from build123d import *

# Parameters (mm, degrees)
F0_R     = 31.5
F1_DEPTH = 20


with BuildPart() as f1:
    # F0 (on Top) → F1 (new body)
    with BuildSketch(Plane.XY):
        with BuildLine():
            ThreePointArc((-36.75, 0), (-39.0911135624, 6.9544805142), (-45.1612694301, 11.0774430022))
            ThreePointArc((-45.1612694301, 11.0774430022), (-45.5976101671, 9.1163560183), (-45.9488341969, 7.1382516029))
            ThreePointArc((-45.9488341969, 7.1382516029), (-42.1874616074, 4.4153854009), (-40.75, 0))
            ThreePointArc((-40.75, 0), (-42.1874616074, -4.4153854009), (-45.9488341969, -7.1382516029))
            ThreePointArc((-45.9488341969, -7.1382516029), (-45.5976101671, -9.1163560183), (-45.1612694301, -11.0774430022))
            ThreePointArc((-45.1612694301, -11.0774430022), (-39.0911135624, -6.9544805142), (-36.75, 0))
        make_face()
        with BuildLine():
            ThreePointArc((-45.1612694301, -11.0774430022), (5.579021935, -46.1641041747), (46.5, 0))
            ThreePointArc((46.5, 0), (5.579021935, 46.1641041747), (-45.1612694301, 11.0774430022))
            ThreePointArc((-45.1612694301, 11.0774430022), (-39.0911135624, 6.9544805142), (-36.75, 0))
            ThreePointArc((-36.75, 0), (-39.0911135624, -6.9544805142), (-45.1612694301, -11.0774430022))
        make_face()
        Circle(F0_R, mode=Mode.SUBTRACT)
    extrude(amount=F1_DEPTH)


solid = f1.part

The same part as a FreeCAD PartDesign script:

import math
import FreeCAD as App
import Part
import Sketcher

doc = App.newDocument("Part")
body = doc.addObject("PartDesign::Body", "Body")

sketch1 = body.newObject("Sketcher::SketchObject", "Sketch")
sketch1.AttachmentSupport = (doc.getObject("XY_Plane"), [""])
sketch1.MapMode = "FlatFace"
sketch1.addGeometry([
    Part.ArcOfCircle(Part.Circle(App.Vector(0, 0, 0), App.Vector(0, 0, 1), 46.5), math.radians(166.22), math.radians(171.17)),
    Part.ArcOfCircle(Part.Circle(App.Vector(-48.2, 0, 0), App.Vector(0, 0, 1), 7.5), math.radians(0), math.radians(72)),
    Part.ArcOfCircle(Part.Circle(App.Vector(-48.2, 0, 0), App.Vector(0, 0, 1), 7.5), math.radians(-72), math.radians(0)),
    Part.ArcOfCircle(Part.Circle(App.Vector(0, 0, 0), App.Vector(0, 0, 1), 46.5), math.radians(-171.17), math.radians(-166.22)),
    Part.ArcOfCircle(Part.Circle(App.Vector(0, 0, 0), App.Vector(0, 0, 1), 46.5), math.radians(-166), math.radians(166)),
    Part.Circle(App.Vector(0, 0, 0), App.Vector(0, 0, 1), 31.5),
], False)
sketch1.addConstraint([
    Sketcher.Constraint("Coincident", 0, 2, 1, 2),
    Sketcher.Constraint("Tangent", 1, 1, 2, 2),
    Sketcher.Constraint("Coincident", 2, 1, 3, 1),
    Sketcher.Constraint("Tangent", 3, 2, 4, 1),
    Sketcher.Constraint("Tangent", 4, 2, 0, 1),
    Sketcher.Constraint("Coincident", 0, 3, -1, 1),
    Sketcher.Constraint("Coincident", 3, 3, -1, 1),
    Sketcher.Constraint("Coincident", 5, 3, -1, 1),
    Sketcher.Constraint("Equal", 1, 2),
    Sketcher.Constraint("PointOnObject", 1, 3, -1),
    Sketcher.Constraint("PointOnObject", 1, 1, -1),
    Sketcher.Constraint("Vertical", 3, 2, 4, 2),
    Sketcher.Constraint("Diameter", 5, 63.0),
    Sketcher.Constraint("Radius", 0, 46.5),
    Sketcher.Constraint("Radius", 1, 7.5),
    Sketcher.Constraint("DistanceX", 1, 3, -1, 1, 48.25),
    Sketcher.Constraint("DistanceX", 3, 2, -1, 1, 45.161269),
])
pad1 = body.newObject("PartDesign::Pad", "Pad")
pad1.Profile = sketch1
pad1.Length = 20

doc.recompute()
